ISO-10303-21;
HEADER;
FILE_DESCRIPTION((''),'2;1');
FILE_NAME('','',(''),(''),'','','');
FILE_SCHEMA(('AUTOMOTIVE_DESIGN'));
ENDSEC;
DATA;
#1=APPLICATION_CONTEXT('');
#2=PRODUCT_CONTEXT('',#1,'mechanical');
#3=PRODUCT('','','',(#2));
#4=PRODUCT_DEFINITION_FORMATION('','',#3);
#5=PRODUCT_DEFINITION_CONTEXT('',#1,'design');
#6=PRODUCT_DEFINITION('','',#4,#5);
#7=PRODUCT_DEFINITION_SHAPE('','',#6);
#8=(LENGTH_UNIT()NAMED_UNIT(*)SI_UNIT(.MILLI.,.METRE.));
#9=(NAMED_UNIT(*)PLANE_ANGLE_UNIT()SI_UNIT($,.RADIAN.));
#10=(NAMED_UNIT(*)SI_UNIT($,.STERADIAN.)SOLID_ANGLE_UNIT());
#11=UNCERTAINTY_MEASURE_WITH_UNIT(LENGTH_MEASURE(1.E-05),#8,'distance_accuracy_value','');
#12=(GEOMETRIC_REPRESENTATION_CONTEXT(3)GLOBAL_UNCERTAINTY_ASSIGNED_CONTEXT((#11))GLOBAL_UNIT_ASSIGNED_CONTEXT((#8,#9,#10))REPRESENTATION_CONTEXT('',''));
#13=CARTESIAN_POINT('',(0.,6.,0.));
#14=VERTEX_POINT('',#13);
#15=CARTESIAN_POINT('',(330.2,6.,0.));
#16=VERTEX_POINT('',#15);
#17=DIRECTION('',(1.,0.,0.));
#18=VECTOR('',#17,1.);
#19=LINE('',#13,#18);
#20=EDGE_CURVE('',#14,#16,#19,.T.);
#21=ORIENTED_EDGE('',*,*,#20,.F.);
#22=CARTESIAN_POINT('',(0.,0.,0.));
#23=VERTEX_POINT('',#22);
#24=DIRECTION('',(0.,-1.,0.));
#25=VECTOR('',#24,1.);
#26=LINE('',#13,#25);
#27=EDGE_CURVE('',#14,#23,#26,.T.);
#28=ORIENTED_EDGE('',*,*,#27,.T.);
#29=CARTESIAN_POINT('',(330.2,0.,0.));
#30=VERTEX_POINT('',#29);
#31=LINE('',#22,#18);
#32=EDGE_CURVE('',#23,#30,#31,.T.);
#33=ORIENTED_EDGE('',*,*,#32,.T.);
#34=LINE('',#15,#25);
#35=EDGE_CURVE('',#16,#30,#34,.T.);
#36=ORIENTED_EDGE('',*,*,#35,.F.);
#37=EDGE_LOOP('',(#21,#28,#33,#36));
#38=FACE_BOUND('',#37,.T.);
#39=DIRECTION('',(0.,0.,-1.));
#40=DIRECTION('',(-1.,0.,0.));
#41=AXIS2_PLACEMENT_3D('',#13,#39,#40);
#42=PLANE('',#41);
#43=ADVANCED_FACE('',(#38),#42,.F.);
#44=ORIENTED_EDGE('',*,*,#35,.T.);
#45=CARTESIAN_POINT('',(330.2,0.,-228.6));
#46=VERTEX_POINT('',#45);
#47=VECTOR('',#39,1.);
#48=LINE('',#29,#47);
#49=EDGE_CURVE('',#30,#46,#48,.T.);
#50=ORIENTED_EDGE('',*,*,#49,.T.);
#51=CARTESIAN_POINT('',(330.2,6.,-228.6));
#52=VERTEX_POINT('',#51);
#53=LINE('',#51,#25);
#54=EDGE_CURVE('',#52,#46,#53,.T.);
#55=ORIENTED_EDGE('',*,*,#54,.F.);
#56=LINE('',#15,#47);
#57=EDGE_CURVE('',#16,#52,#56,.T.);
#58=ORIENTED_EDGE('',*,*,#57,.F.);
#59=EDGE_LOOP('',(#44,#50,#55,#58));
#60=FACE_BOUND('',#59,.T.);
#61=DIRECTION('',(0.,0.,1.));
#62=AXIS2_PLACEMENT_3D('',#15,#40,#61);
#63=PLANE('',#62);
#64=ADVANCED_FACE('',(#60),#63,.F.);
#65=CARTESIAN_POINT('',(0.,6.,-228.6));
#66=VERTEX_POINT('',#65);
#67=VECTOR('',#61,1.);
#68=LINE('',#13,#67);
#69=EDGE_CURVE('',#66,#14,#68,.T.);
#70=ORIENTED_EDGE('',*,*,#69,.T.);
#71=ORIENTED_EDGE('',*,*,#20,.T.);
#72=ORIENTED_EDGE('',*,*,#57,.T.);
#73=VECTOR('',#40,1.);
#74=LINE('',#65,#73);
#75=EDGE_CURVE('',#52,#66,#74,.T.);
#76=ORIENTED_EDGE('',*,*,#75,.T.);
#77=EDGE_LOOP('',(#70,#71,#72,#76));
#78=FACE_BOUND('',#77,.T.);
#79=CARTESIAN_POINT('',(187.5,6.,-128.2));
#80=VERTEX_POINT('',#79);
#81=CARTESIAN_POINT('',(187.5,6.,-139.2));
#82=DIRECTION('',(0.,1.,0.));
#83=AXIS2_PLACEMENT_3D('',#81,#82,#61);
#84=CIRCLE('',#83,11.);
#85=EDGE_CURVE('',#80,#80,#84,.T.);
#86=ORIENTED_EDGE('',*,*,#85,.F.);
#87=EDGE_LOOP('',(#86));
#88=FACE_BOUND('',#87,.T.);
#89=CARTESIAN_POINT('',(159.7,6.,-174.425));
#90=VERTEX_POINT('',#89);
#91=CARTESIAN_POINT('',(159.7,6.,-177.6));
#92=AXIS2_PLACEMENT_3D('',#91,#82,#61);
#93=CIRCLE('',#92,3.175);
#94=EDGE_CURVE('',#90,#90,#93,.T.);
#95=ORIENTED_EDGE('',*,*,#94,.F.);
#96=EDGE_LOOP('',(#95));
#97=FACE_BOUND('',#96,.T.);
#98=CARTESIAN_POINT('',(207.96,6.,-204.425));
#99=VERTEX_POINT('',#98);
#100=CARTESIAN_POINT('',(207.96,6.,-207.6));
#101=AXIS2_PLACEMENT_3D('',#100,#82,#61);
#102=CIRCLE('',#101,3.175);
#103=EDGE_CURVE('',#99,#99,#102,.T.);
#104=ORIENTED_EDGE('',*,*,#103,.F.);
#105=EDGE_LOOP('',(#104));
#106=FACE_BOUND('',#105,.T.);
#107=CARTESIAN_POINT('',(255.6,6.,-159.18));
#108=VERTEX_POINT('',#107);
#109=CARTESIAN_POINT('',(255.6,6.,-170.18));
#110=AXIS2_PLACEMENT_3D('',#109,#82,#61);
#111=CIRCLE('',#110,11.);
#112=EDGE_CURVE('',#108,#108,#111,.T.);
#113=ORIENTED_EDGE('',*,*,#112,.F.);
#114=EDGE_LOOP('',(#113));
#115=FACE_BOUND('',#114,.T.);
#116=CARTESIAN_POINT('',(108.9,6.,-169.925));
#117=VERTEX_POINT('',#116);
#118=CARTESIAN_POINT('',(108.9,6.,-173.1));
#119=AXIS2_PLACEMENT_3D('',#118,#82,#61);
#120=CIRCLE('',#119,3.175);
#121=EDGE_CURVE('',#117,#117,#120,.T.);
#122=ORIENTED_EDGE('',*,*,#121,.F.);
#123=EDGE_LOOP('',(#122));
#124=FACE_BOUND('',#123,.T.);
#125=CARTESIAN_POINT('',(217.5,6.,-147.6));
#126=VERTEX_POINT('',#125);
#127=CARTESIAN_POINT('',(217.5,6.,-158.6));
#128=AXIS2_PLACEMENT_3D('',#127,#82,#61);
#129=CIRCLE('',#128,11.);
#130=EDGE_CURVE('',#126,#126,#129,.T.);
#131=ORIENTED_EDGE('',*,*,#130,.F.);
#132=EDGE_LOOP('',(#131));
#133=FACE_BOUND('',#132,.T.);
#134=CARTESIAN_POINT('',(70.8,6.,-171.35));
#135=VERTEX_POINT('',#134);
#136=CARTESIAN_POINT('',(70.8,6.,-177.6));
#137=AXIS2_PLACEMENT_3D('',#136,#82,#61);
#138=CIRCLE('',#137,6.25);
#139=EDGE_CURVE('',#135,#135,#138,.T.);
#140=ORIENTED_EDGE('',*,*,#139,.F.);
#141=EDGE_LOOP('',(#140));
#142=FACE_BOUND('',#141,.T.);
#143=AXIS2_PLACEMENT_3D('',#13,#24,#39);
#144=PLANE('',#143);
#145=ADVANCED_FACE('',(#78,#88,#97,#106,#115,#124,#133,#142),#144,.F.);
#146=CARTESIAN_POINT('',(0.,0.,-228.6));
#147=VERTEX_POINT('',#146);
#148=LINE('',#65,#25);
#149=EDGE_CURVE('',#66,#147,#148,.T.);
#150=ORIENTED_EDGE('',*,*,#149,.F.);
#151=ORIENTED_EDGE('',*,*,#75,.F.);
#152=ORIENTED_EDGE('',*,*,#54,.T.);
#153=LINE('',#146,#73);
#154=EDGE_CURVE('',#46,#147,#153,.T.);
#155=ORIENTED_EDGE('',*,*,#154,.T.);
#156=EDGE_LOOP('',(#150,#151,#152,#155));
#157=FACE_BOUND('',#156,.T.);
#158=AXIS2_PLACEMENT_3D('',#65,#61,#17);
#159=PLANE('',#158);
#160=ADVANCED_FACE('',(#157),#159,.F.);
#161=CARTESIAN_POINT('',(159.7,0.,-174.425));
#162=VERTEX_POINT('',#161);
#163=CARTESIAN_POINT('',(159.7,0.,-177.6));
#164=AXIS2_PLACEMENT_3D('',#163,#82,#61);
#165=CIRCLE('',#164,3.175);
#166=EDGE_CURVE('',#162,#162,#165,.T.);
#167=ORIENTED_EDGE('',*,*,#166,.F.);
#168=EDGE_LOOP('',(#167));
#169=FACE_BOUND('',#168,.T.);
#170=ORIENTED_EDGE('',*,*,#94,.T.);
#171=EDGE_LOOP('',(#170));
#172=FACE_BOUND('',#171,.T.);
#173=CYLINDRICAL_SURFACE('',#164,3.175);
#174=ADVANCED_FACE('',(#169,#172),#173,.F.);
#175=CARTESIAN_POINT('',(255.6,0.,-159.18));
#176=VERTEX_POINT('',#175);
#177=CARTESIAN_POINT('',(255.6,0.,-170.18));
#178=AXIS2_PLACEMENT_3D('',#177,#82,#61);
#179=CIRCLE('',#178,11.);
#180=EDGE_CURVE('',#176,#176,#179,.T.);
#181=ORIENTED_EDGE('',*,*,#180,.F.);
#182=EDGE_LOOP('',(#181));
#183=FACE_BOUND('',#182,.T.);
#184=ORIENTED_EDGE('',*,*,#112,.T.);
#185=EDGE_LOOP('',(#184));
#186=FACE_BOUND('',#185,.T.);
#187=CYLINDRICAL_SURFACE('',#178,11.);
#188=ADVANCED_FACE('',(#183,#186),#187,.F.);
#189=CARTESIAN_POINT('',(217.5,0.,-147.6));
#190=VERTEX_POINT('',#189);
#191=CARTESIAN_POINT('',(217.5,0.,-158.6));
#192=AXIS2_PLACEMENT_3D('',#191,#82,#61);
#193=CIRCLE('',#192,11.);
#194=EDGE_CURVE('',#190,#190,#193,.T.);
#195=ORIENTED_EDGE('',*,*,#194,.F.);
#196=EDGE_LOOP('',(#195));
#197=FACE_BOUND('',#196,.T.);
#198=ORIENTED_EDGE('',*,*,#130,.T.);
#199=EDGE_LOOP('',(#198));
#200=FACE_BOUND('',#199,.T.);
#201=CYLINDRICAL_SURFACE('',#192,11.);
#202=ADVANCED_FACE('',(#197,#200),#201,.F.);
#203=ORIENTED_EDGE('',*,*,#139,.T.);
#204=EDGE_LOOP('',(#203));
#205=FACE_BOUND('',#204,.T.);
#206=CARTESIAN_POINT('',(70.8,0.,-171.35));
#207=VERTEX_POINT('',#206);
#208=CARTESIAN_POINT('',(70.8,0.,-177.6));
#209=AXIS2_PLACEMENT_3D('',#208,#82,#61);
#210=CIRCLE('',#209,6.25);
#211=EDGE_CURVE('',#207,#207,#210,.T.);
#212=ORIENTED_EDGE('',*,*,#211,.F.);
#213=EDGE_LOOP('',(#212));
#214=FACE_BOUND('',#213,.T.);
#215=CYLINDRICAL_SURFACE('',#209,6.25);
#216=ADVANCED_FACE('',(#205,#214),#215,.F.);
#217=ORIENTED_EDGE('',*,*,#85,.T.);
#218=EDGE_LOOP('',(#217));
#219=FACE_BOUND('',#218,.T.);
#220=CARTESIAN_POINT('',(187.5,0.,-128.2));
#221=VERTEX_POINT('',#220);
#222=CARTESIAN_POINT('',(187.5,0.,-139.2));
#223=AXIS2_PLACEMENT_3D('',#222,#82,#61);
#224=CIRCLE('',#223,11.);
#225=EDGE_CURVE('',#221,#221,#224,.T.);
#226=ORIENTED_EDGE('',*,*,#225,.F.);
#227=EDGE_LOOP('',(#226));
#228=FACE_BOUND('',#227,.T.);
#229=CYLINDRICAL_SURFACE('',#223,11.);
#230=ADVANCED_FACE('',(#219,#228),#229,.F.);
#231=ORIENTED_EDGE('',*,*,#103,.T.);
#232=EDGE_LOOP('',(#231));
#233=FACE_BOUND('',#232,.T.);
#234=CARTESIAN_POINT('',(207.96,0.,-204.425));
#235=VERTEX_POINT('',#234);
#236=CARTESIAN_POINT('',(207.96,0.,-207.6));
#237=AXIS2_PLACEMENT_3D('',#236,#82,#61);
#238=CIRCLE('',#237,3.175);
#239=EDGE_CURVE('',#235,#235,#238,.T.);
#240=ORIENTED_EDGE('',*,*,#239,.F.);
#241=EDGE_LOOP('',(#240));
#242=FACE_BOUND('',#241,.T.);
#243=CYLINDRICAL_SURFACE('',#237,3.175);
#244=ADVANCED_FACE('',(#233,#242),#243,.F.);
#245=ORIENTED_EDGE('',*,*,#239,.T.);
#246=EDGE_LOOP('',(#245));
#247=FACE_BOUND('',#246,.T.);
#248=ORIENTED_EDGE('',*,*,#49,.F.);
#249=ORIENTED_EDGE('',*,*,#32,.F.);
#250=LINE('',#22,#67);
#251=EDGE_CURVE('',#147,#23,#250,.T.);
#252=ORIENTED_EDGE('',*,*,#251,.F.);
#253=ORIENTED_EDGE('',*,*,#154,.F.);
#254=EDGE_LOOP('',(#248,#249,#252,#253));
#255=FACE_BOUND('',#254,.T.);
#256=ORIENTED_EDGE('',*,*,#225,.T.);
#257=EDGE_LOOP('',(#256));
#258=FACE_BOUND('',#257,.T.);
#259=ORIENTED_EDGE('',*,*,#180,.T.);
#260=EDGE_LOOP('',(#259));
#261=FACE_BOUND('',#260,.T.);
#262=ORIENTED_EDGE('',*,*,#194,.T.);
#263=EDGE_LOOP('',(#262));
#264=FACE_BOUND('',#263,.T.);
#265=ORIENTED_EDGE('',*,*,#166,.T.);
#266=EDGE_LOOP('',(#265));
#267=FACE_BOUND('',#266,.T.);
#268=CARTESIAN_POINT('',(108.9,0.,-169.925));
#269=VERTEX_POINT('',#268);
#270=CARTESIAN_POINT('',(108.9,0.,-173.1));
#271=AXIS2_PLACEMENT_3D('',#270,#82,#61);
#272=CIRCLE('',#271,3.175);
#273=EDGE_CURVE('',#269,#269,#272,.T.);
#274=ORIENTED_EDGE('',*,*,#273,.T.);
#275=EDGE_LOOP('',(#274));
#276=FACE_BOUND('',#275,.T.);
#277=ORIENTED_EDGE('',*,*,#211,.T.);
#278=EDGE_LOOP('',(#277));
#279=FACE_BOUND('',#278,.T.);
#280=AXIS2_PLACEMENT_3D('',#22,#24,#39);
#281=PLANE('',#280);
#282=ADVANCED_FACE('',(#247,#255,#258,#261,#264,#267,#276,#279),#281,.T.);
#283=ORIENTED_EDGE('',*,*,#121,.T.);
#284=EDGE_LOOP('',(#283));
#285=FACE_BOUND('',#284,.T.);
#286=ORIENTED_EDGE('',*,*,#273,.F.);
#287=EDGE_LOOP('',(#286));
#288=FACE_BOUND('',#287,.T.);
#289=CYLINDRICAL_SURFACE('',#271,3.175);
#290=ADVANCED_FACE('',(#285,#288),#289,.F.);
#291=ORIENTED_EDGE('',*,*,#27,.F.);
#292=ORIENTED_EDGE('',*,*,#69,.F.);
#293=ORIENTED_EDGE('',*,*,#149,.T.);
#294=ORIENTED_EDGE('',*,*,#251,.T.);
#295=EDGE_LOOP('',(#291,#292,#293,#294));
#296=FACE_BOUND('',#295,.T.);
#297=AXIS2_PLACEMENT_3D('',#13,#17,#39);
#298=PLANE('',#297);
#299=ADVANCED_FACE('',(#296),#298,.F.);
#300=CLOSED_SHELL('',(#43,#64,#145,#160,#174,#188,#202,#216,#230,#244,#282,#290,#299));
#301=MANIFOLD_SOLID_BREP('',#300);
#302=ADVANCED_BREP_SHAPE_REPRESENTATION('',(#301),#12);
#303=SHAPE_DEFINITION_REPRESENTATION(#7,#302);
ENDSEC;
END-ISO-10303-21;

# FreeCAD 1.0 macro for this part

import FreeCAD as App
import Part
import Sketcher
Q = App.Units.Quantity


def add_polygon(sketch, points):
    """Adds a closed chain of lines whose ends are joined by coincident constraints."""
    first, n = sketch.GeometryCount, len(points)
    for a, b in zip(points, points[1:] + points[:1]):
        sketch.addGeometry(Part.LineSegment(App.Vector(*a, 0), App.Vector(*b, 0)), False)
    for i in range(n):
        sketch.addConstraint(Sketcher.Constraint("Coincident", first + i, 2, first + (i + 1) % n, 1))

doc = App.newDocument("Part")
body = doc.addObject("PartDesign::Body", "Body")

# Sketch on XZ plane
sketch1 = body.newObject("Sketcher::SketchObject", "Sketch")
sketch1.AttachmentSupport = (doc.getObject("XZ_Plane"), [""])
sketch1.MapMode = "FlatFace"
add_polygon(sketch1, [(0, -229), (0, 0), (330, 0), (330, -229)])  # lines 0-3
sketch1.addConstraint([
    Sketcher.Constraint("Vertical", 0),
    Sketcher.Constraint("Horizontal", 1),
    Sketcher.Constraint("Vertical", 2),
    Sketcher.Constraint("Horizontal", 3),
    Sketcher.Constraint("Coincident", 0, 2, -1, 1),
    Sketcher.Constraint("DistanceX", 1, 1, 1, 2, Q("330.2 mm")),
    Sketcher.Constraint("DistanceY", 0, 1, 0, 2, Q("228.6 mm")),
])
pad1 = body.newObject("PartDesign::Pad", "Pad")
pad1.Profile = sketch1
pad1.Length = 6
pad1.Reversed = True

# Sketch on XZ plane
sketch2 = body.newObject("Sketcher::SketchObject", "Sketch001")
sketch2.AttachmentSupport = (doc.getObject("XZ_Plane"), [""])
sketch2.MapMode = "FlatFace"
sketch2.AttachmentOffset = App.Placement(App.Vector(0, 0, -6), App.Rotation())
sketch2.addGeometry([
    Part.Circle(App.Vector(70.8, -177.6, 0), App.Vector(0, 0, 1), 6.2),  # 0
    Part.Circle(App.Vector(108.9, -173.1, 0), App.Vector(0, 0, 1), 3.2),  # 1
    Part.Circle(App.Vector(159.7, -177.6, 0), App.Vector(0, 0, 1), 3.2),  # 2
    Part.Circle(App.Vector(208, -207.6, 0), App.Vector(0, 0, 1), 3.2),  # 3
    Part.Circle(App.Vector(187.5, -139.2, 0), App.Vector(0, 0, 1), 11),  # 4
    Part.Circle(App.Vector(217.5, -158.6, 0), App.Vector(0, 0, 1), 11),  # 5
    Part.Circle(App.Vector(255.6, -170.2, 0), App.Vector(0, 0, 1), 11),  # 6
], False)
sketch2.addConstraint([
    Sketcher.Constraint("Equal", 1, 2),
    Sketcher.Constraint("Equal", 2, 3),
    Sketcher.Constraint("Equal", 4, 5),
    Sketcher.Constraint("Equal", 5, 6),
    Sketcher.Constraint("Horizontal", 0, 3, 2, 3),
    Sketcher.Constraint("Diameter", 4, Q("22 mm")),
    Sketcher.Constraint("Diameter", 0, Q("12.5 mm")),
    Sketcher.Constraint("Diameter", 1, Q("6.35 mm")),
    Sketcher.Constraint("DistanceY", 3, 3, 2, 3, Q("30 mm")),
    Sketcher.Constraint("DistanceX", 4, 3, 5, 3, Q("30 mm")),
    Sketcher.Constraint("DistanceY", 3, 3, 5, 3, Q("49 mm")),
    Sketcher.Constraint("DistanceX", -1, 1, 0, 3, Q("70.8 mm")),
    Sketcher.Constraint("DistanceY", 0, 3, -1, 1, Q("177.6 mm")),
    Sketcher.Constraint("DistanceX", -1, 1, 1, 3, Q("108.9 mm")),
    Sketcher.Constraint("DistanceY", 1, 3, -1, 1, Q("173.1 mm")),
    Sketcher.Constraint("DistanceX", -1, 1, 2, 3, Q("159.7 mm")),
    Sketcher.Constraint("DistanceX", -1, 1, 4, 3, Q("187.5 mm")),
    Sketcher.Constraint("DistanceY", 4, 3, -1, 1, Q("139.2 mm")),
    Sketcher.Constraint("DistanceX", -1, 1, 6, 3, Q("255.6 mm")),
    Sketcher.Constraint("DistanceX", -1, 1, 3, 3, Q("207.96 mm")),
    Sketcher.Constraint("DistanceY", 6, 3, -1, 1, Q("170.18 mm")),
])
pocket1 = body.newObject("PartDesign::Pocket", "Pocket")
pocket1.Profile = sketch2
pocket1.Type = "ThroughAll"
pocket1.Reversed = True

doc.recompute()
